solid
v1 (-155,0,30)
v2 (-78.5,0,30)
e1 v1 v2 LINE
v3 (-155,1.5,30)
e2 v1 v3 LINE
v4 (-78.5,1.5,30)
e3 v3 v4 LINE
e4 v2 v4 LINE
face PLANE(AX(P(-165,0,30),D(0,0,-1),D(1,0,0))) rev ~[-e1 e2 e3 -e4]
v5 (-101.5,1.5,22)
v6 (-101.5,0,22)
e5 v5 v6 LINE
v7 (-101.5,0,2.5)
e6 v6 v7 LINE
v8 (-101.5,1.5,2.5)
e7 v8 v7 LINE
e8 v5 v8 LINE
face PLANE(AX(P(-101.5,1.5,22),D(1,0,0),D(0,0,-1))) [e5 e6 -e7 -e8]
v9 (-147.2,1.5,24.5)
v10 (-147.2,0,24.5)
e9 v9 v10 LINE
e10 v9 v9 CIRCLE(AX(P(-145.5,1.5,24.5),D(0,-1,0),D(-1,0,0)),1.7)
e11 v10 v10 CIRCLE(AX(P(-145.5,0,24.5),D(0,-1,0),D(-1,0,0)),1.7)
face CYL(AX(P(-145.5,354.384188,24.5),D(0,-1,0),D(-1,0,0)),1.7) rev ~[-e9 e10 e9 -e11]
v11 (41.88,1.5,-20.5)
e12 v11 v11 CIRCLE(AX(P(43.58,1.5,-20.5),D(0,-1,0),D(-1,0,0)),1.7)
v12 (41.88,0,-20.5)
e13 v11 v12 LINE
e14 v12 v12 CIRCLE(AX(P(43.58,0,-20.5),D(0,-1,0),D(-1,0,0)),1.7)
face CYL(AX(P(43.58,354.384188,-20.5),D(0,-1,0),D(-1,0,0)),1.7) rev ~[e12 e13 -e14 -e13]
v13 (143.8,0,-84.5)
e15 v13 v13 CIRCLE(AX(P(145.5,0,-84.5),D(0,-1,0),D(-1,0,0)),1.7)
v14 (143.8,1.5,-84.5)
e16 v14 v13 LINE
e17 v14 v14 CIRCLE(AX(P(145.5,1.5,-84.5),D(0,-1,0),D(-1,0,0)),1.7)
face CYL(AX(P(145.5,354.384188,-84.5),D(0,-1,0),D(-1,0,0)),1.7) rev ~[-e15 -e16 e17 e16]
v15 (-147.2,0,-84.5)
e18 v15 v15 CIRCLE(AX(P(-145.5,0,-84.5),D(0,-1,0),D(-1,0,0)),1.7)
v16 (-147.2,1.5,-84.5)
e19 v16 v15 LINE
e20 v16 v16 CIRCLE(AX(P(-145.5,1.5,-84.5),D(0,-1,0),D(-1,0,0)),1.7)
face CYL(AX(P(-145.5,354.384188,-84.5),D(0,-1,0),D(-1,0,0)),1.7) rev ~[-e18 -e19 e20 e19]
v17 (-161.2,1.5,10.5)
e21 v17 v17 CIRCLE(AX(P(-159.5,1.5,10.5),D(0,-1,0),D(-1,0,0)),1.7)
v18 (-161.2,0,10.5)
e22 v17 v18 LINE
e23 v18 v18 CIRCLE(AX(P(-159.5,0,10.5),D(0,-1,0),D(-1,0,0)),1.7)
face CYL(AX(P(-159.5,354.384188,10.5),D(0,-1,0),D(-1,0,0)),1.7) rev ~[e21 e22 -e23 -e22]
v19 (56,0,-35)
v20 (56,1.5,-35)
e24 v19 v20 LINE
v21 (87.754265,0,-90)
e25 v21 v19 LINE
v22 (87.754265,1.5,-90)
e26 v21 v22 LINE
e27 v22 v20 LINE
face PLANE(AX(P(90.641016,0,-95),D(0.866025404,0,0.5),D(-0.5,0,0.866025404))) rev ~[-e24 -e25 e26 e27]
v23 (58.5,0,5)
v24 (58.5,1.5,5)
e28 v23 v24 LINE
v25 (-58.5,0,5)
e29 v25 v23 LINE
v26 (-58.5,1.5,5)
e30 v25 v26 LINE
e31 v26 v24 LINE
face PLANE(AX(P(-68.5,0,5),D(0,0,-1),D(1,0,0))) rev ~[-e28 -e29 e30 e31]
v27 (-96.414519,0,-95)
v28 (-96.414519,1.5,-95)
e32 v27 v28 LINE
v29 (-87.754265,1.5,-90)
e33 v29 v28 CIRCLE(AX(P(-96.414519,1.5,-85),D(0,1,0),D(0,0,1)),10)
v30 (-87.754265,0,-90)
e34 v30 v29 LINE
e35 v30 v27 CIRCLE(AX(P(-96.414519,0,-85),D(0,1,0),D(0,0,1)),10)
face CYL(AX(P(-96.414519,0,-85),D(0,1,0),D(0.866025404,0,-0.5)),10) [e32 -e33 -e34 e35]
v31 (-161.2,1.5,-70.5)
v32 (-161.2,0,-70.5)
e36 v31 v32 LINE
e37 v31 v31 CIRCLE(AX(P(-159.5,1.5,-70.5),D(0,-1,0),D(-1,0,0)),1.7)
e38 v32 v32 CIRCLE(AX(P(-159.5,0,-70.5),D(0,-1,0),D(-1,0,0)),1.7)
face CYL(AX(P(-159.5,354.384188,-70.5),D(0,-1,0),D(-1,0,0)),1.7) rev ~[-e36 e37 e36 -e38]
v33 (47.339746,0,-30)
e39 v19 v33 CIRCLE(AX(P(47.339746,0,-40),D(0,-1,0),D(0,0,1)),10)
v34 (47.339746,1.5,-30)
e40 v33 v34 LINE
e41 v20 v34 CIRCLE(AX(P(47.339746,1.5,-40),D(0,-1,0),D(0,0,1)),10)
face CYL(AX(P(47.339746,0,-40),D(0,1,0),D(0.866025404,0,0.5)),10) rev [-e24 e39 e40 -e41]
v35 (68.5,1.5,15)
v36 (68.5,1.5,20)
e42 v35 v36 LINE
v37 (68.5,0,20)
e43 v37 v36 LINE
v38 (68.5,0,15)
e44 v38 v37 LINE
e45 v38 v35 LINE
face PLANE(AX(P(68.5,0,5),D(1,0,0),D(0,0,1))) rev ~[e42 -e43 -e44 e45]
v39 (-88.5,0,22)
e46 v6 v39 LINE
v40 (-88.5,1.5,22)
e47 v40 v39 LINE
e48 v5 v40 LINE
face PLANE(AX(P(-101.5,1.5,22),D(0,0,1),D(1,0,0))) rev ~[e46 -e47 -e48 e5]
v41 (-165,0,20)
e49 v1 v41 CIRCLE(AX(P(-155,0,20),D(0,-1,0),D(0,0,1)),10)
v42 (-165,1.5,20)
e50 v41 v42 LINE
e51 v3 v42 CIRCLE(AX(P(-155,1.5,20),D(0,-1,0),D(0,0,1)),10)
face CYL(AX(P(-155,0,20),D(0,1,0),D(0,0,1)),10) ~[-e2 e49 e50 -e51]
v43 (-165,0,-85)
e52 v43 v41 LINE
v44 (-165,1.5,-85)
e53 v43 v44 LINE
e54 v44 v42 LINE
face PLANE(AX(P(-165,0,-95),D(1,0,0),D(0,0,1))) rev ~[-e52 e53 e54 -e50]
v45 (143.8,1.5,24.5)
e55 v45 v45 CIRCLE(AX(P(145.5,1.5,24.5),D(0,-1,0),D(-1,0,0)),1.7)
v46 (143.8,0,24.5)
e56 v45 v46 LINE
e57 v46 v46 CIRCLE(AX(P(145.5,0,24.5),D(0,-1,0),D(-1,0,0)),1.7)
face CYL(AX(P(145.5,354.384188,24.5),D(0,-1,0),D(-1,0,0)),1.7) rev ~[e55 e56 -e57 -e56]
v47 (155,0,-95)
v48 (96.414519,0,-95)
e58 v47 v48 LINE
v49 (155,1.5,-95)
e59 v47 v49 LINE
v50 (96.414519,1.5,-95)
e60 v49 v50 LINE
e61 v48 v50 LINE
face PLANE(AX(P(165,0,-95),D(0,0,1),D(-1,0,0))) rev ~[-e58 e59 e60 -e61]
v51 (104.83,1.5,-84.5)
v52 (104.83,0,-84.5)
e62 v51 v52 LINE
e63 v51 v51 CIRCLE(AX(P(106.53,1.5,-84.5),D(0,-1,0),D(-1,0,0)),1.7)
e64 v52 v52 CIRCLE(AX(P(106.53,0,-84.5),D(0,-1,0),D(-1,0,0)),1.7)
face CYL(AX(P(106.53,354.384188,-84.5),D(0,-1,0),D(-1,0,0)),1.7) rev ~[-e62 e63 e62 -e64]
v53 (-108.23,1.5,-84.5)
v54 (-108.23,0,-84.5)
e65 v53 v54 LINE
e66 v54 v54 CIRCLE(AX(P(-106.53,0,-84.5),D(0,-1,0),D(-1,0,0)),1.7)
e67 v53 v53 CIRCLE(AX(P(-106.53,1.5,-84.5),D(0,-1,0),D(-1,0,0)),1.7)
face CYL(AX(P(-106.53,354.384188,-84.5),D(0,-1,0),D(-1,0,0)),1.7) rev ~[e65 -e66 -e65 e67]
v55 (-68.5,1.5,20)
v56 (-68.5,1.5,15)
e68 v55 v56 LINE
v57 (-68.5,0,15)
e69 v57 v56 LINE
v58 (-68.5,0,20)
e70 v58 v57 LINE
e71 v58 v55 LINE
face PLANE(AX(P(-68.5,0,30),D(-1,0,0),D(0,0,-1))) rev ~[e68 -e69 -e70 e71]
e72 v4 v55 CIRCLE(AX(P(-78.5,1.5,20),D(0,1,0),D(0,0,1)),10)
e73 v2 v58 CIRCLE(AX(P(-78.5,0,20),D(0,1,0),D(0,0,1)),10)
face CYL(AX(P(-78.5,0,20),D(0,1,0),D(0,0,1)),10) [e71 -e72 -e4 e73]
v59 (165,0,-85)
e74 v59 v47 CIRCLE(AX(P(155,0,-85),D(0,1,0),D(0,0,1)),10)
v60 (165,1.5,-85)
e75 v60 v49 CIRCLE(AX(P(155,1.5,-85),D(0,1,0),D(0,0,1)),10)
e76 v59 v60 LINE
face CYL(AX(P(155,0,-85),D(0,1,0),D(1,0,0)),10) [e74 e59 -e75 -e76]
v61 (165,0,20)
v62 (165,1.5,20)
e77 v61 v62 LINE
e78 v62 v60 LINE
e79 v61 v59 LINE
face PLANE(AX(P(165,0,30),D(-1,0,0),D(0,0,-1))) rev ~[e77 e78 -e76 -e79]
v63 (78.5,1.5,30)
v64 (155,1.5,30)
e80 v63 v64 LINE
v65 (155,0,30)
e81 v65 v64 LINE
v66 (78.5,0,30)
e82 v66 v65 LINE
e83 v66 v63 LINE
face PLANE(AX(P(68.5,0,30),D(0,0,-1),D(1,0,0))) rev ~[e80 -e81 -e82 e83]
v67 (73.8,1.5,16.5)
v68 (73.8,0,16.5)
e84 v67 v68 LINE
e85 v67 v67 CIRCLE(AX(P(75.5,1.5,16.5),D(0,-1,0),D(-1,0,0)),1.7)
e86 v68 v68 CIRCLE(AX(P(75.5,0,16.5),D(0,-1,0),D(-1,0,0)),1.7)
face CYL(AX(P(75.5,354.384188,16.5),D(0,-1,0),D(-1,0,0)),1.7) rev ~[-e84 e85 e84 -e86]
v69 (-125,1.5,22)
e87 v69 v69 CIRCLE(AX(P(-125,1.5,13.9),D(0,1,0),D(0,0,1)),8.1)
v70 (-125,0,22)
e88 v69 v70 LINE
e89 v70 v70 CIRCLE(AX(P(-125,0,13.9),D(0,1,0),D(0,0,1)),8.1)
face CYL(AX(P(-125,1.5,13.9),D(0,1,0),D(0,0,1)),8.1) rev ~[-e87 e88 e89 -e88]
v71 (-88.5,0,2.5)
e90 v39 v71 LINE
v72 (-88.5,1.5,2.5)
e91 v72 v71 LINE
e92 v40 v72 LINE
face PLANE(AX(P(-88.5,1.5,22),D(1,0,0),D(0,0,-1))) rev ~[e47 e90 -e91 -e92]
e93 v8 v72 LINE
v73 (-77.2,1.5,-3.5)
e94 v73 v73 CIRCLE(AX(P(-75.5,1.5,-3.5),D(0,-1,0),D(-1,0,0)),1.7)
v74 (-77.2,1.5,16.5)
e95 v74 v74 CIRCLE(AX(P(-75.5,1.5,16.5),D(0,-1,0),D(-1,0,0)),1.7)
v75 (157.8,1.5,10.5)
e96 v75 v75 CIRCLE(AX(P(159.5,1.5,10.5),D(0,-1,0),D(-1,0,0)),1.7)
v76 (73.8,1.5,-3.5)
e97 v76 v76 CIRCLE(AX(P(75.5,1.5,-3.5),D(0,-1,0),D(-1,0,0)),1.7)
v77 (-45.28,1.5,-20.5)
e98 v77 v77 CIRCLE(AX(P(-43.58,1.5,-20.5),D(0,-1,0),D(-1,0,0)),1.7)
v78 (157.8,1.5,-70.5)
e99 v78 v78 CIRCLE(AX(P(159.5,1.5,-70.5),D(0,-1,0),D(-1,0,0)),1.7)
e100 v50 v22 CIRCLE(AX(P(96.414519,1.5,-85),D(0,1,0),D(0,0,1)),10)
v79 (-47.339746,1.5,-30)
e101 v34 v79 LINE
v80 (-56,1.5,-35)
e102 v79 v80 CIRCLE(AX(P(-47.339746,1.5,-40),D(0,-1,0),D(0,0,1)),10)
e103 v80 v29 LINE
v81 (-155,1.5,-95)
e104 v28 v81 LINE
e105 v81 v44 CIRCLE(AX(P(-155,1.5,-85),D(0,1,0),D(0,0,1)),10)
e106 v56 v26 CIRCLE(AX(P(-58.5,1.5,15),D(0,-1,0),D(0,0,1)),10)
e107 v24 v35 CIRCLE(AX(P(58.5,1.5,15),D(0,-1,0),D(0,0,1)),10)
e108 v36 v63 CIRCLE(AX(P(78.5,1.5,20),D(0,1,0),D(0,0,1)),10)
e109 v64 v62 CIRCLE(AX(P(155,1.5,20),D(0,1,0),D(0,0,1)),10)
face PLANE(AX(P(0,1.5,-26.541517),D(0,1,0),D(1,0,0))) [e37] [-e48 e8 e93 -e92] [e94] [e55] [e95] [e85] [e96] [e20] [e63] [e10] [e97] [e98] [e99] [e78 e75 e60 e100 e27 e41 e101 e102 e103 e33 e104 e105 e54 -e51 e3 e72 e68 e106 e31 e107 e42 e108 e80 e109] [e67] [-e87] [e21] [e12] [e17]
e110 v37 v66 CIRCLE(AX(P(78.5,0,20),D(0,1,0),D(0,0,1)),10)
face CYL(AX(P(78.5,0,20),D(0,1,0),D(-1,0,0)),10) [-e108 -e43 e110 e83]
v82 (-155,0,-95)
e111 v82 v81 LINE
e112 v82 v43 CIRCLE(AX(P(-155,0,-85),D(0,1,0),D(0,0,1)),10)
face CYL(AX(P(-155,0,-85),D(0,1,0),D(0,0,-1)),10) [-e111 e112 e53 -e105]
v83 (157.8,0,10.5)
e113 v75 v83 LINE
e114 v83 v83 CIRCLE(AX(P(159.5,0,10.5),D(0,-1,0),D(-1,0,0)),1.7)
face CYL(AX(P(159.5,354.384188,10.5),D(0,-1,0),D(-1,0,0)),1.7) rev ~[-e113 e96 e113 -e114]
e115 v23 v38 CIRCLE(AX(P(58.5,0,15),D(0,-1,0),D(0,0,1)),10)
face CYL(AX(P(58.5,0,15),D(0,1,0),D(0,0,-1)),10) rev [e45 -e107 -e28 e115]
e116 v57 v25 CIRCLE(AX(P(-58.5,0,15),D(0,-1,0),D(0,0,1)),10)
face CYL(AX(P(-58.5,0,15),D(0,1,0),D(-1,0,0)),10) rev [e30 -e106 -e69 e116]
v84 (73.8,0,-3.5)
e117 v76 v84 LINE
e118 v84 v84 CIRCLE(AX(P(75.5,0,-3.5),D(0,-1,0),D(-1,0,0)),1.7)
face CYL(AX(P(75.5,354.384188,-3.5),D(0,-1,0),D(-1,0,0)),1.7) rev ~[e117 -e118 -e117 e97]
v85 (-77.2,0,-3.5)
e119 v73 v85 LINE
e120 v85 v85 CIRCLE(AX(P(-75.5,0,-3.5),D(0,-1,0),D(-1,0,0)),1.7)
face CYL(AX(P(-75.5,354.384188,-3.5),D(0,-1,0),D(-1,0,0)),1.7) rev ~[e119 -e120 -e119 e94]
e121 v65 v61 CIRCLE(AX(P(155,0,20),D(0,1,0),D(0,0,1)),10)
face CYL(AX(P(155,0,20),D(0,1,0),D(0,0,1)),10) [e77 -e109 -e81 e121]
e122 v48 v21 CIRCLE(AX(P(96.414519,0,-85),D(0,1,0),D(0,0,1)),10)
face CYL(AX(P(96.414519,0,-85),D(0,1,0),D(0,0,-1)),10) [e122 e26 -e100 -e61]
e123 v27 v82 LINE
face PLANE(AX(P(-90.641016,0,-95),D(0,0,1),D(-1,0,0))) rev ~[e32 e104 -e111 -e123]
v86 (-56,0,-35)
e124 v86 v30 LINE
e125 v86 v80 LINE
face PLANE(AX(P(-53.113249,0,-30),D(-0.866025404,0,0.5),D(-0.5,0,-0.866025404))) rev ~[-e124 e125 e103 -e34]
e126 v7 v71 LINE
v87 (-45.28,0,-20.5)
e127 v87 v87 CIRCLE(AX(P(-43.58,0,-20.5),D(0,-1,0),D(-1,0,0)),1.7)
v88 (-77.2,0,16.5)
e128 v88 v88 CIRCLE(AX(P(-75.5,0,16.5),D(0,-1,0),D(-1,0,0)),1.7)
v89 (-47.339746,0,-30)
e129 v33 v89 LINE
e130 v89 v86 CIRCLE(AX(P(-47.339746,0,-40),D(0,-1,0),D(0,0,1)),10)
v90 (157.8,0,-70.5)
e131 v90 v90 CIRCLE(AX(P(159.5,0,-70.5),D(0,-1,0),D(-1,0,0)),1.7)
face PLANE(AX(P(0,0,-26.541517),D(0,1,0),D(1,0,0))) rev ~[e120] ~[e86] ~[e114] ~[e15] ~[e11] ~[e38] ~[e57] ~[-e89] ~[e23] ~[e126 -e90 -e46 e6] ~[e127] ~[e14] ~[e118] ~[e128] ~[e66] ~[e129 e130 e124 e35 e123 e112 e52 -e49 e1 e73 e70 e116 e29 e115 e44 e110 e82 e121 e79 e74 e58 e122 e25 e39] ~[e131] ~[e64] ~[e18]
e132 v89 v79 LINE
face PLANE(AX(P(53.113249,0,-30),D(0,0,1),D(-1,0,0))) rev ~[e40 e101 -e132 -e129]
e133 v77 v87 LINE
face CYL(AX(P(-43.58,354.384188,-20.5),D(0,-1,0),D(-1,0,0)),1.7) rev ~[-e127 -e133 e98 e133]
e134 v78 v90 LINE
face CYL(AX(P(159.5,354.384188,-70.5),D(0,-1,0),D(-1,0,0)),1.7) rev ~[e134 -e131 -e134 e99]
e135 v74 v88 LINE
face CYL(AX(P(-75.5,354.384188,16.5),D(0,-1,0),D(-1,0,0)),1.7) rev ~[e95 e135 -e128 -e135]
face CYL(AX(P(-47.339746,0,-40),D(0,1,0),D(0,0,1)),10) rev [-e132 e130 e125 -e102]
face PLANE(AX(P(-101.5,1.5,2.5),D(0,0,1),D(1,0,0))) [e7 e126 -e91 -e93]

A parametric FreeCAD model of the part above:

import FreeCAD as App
import Part
import Sketcher

V = App.Vector
Q = App.Units.Quantity


def edges_at(feature, points):
    """Names of the edges that pass closest to the given points."""
    edges = feature.Shape.Edges
    near = lambda p: min(range(len(edges)), key=lambda i: edges[i].distToShape(Part.Vertex(*p))[0])
    return sorted({f"Edge{near(p) + 1}" for p in points})

doc = App.newDocument("Part")
body = doc.addObject("PartDesign::Body", "Body")

sketch1 = doc.addObject("Sketcher::SketchObject", "Sketch")
body.addObject(sketch1)
sketch1.AttachmentSupport = (doc.XZ_Plane, [""])
sketch1.MapMode = "FlatFace"
sketch1.addGeometry([
    Part.LineSegment(V(-165, 30, 0), V(-68.5, 30, 0)),
    Part.LineSegment(V(-68.5, 30, 0), V(-68.5, 5, 0)),
    Part.LineSegment(V(-68.5, 5, 0), V(68.5, 5, 0)),
    Part.LineSegment(V(68.5, 5, 0), V(68.5, 30, 0)),
    Part.LineSegment(V(68.5, 30, 0), V(165, 30, 0)),
    Part.LineSegment(V(165, 30, 0), V(165, -95, 0)),
    Part.LineSegment(V(165, -95, 0), V(90.641016, -95, 0)),
    Part.LineSegment(V(90.641016, -95, 0), V(53.113249, -30, 0)),
    Part.LineSegment(V(53.113249, -30, 0), V(-53.113249, -30, 0)),
    Part.LineSegment(V(-53.113249, -30, 0), V(-90.641016, -95, 0)),
    Part.LineSegment(V(-90.641016, -95, 0), V(-165, -95, 0)),
    Part.LineSegment(V(-165, -95, 0), V(-165, 30, 0)),
], False)
sketch1.addConstraint([
    Sketcher.Constraint("Coincident", 0, 2, 1, 1),
    Sketcher.Constraint("Coincident", 1, 2, 2, 1),
    Sketcher.Constraint("Coincident", 2, 2, 3, 1),
    Sketcher.Constraint("Coincident", 3, 2, 4, 1),
    Sketcher.Constraint("Coincident", 4, 2, 5, 1),
    Sketcher.Constraint("Coincident", 5, 2, 6, 1),
    Sketcher.Constraint("Coincident", 6, 2, 7, 1),
    Sketcher.Constraint("Coincident", 7, 2, 8, 1),
    Sketcher.Constraint("Coincident", 8, 2, 9, 1),
    Sketcher.Constraint("Coincident", 9, 2, 10, 1),
    Sketcher.Constraint("Coincident", 10, 2, 11, 1),
    Sketcher.Constraint("Coincident", 11, 2, 0, 1),
    Sketcher.Constraint("Horizontal", 0),
    Sketcher.Constraint("Vertical", 1),
    Sketcher.Constraint("Horizontal", 2),
    Sketcher.Constraint("Vertical", 3),
    Sketcher.Constraint("Horizontal", 4),
    Sketcher.Constraint("Vertical", 5),
    Sketcher.Constraint("Horizontal", 6),
    Sketcher.Constraint("Horizontal", 8),
    Sketcher.Constraint("Horizontal", 10),
    Sketcher.Constraint("Vertical", 11),
    Sketcher.Constraint("Symmetric", 0, 2, 3, 2, -2),
    Sketcher.Constraint("Symmetric", 6, 2, 9, 2, -2),
    Sketcher.Constraint("Equal", 0, 4),
    Sketcher.Constraint("Equal", 7, 9),
    Sketcher.Constraint("DistanceX", 2, 1, 2, 2, 137.0),
    Sketcher.Constraint("DistanceY", 1, 2, 1, 1, 25.0),
    Sketcher.Constraint("DistanceY", 5, 2, 5, 1, 125.0),
    Sketcher.Constraint("Angle", 7, Q("120 deg")),
    Sketcher.Constraint("DistanceX", 0, 1, 0, 2, 96.5),
    Sketcher.Constraint("DistanceY", -1, 1, 0, 2, 30.0),
    Sketcher.Constraint("DistanceY", 7, 2, -1, 1, 30.0),
    Sketcher.Constraint("DistanceX", 6, 2, 6, 1, 74.358984),
])
pad1 = doc.addObject("PartDesign::Pad", "Pad")
body.addObject(pad1)
pad1.Profile = sketch1
pad1.Length = 1.5
pad1.Reversed = True
doc.recompute()

fillet = doc.addObject("PartDesign::Fillet", "Fillet")
body.addObject(fillet)
fillet.Base = (pad1, edges_at(pad1, [
    (68.5, 0.75, 30),
    (68.5, 0.75, 5),
    (-68.5, 0.75, 5),
    (-68.5, 0.75, 30),
    (-165, 0.75, 30),
    (-165, 0.75, -95),
    (-90.641, 0.75, -95),
    (-53.113, 0.75, -30),
    (53.113, 0.75, -30),
    (90.641, 0.75, -95),
    (165, 0.75, -95),
    (165, 0.75, 30),
]))
fillet.Radius = 10

sketch2 = doc.addObject("Sketcher::SketchObject", "Sketch001")
body.addObject(sketch2)
sketch2.AttachmentSupport = (doc.XZ_Plane, [""])
sketch2.MapMode = "FlatFace"
sketch2.AttachmentOffset = App.Placement(V(0, 0, -1.5), App.Rotation())
sketch2.addGeometry([
    Part.Circle(V(-75.5, 16.5, 0), V(0, 0, 1), 1.7),
    Part.Circle(V(-75.5, -3.5, 0), V(0, 0, 1), 1.7),
    Part.Circle(V(75.5, 16.5, 0), V(0, 0, 1), 1.7),
    Part.Circle(V(75.5, -3.5, 0), V(0, 0, 1), 1.7),
    Part.Circle(V(-145.5, 24.5, 0), V(0, 0, 1), 1.7),
    Part.Circle(V(-159.5, 10.5, 0), V(0, 0, 1), 1.7),
    Part.Circle(V(-159.5, -70.5, 0), V(0, 0, 1), 1.7),
    Part.Circle(V(-145.5, -84.5, 0), V(0, 0, 1), 1.7),
    Part.Circle(V(145.5, 24.5, 0), V(0, 0, 1), 1.7),
    Part.Circle(V(159.5, 10.5, 0), V(0, 0, 1), 1.7),
    Part.Circle(V(145.5, -84.5, 0), V(0, 0, 1), 1.7),
    Part.Circle(V(159.5, -70.5, 0), V(0, 0, 1), 1.7),
    Part.Circle(V(-43.58, -20.5, 0), V(0, 0, 1), 1.7),
    Part.Circle(V(43.58, -20.5, 0), V(0, 0, 1), 1.7),
    Part.Circle(V(-106.53, -84.5, 0), V(0, 0, 1), 1.7),
    Part.Circle(V(106.53, -84.5, 0), V(0, 0, 1), 1.7),
], False)
sketch2.addConstraint([
    Sketcher.Constraint("Equal", 0, 1),
    Sketcher.Constraint("Equal", 1, 2),
    Sketcher.Constraint("Equal", 2, 3),
    Sketcher.Constraint("Equal", 3, 4),
    Sketcher.Constraint("Equal", 4, 5),
    Sketcher.Constraint("Equal", 5, 6),
    Sketcher.Constraint("Equal", 6, 7),
    Sketcher.Constraint("Equal", 7, 8),
    Sketcher.Constraint("Equal", 8, 9),
    Sketcher.Constraint("Equal", 9, 10),
    Sketcher.Constraint("Equal", 10, 11),
    Sketcher.Constraint("Equal", 11, 12),
    Sketcher.Constraint("Equal", 12, 13),
    Sketcher.Constraint("Equal", 13, 14),
    Sketcher.Constraint("Equal", 14, 15),
    Sketcher.Constraint("Symmetric", 0, 3, 2, 3, -2),
    Sketcher.Constraint("Symmetric", 1, 3, 3, 3, -2),
    Sketcher.Constraint("Symmetric", 4, 3, 8, 3, -2),
    Sketcher.Constraint("Symmetric", 5, 3, 9, 3, -2),
    Sketcher.Constraint("Symmetric", 7, 3, 10, 3, -2),
    Sketcher.Constraint("Symmetric", 6, 3, 11, 3, -2),
    Sketcher.Constraint("Symmetric", 12, 3, 13, 3, -2),
    Sketcher.Constraint("Symmetric", 14, 3, 15, 3, -2),
    Sketcher.Constraint("Horizontal", 10, 3, 14, 3),
    Sketcher.Constraint("Vertical", 0, 3, 1, 3),
    Sketcher.Constraint("Vertical", 5, 3, 6, 3),
    Sketcher.Constraint("Vertical", 4, 3, 7, 3),
    Sketcher.Constraint("Diameter", 0, 3.4),
    Sketcher.Constraint("DistanceY", 1, 3, 0, 3, 20.0),
    Sketcher.Constraint("DistanceX", 0, 3, 2, 3, 151.0),
    Sketcher.Constraint("DistanceX", 4, 3, 0, 3, 70.0),
    Sketcher.Constraint("DistanceY", 0, 3, 4, 3, 8.0),
    Sketcher.Constraint("DistanceX", 5, 3, 4, 3, 14.0),
    Sketcher.Constraint("DistanceY", 5, 3, 4, 3, 14.0),
    Sketcher.Constraint("DistanceY", 6, 3, 5, 3, 81.0),
    Sketcher.Constraint("DistanceY", 7, 3, 6, 3, 14.0),
    Sketcher.Constraint("DistanceY", 12, 3, 1, 3, 17.0),
    Sketcher.Constraint("DistanceY", -1, 1, 0, 3, 16.5),
    Sketcher.Constraint("DistanceX", 12, 3, -1, 1, 43.58),
    Sketcher.Constraint("DistanceX", 14, 3, -1, 1, 106.53),
])
doc.recompute()
hole = doc.addObject("PartDesign::Hole", "Hole")
body.addObject(hole)
hole.Profile = sketch2
hole.ThreadType = "None"
hole.Diameter = 3.4
hole.DepthType = "ThroughAll"
hole.Reversed = True

sketch3 = doc.addObject("Sketcher::SketchObject", "Sketch002")
body.addObject(sketch3)
sketch3.AttachmentSupport = (doc.XZ_Plane, [""])
sketch3.MapMode = "FlatFace"
sketch3.AttachmentOffset = App.Placement(V(0, 0, -1.5), App.Rotation())
sketch3.addGeometry([
    Part.Circle(V(-125, 13.9, 0), V(0, 0, 1), 8.1),
    Part.LineSegment(V(-101.5, 2.5, 0), V(-101.5, 22, 0)),
    Part.LineSegment(V(-101.5, 22, 0), V(-88.5, 22, 0)),
    Part.LineSegment(V(-88.5, 22, 0), V(-88.5, 2.5, 0)),
    Part.LineSegment(V(-88.5, 2.5, 0), V(-101.5, 2.5, 0)),
], False)
sketch3.addConstraint([
    Sketcher.Constraint("Coincident", 1, 2, 2, 1),
    Sketcher.Constraint("Coincident", 2, 2, 3, 1),
    Sketcher.Constraint("Coincident", 3, 2, 4, 1),
    Sketcher.Constraint("Coincident", 4, 2, 1, 1),
    Sketcher.Constraint("Vertical", 1),
    Sketcher.Constraint("Horizontal", 2),
    Sketcher.Constraint("Vertical", 3),
    Sketcher.Constraint("Horizontal", 4),
    Sketcher.Constraint("Diameter", 0, 16.2),
    Sketcher.Constraint("DistanceX", 2, 1, 2, 2, 13.0),
    Sketcher.Constraint("DistanceY", 1, 1, 1, 2, 19.5),
    Sketcher.Constraint("DistanceX", 0, 3, -1, 1, 125.0),
    Sketcher.Constraint("DistanceY", -1, 1, 1, 2, 22.0),
    Sketcher.Constraint("DistanceY", -1, 1, 0, 3, 13.9),
    Sketcher.Constraint("DistanceX", 1, 2, -1, 1, 101.5),
])
pocket1 = doc.addObject("PartDesign::Pocket", "Pocket")
body.addObject(pocket1)
pocket1.Profile = sketch3
pocket1.Type = "ThroughAll"
pocket1.Reversed = True

doc.recompute()
